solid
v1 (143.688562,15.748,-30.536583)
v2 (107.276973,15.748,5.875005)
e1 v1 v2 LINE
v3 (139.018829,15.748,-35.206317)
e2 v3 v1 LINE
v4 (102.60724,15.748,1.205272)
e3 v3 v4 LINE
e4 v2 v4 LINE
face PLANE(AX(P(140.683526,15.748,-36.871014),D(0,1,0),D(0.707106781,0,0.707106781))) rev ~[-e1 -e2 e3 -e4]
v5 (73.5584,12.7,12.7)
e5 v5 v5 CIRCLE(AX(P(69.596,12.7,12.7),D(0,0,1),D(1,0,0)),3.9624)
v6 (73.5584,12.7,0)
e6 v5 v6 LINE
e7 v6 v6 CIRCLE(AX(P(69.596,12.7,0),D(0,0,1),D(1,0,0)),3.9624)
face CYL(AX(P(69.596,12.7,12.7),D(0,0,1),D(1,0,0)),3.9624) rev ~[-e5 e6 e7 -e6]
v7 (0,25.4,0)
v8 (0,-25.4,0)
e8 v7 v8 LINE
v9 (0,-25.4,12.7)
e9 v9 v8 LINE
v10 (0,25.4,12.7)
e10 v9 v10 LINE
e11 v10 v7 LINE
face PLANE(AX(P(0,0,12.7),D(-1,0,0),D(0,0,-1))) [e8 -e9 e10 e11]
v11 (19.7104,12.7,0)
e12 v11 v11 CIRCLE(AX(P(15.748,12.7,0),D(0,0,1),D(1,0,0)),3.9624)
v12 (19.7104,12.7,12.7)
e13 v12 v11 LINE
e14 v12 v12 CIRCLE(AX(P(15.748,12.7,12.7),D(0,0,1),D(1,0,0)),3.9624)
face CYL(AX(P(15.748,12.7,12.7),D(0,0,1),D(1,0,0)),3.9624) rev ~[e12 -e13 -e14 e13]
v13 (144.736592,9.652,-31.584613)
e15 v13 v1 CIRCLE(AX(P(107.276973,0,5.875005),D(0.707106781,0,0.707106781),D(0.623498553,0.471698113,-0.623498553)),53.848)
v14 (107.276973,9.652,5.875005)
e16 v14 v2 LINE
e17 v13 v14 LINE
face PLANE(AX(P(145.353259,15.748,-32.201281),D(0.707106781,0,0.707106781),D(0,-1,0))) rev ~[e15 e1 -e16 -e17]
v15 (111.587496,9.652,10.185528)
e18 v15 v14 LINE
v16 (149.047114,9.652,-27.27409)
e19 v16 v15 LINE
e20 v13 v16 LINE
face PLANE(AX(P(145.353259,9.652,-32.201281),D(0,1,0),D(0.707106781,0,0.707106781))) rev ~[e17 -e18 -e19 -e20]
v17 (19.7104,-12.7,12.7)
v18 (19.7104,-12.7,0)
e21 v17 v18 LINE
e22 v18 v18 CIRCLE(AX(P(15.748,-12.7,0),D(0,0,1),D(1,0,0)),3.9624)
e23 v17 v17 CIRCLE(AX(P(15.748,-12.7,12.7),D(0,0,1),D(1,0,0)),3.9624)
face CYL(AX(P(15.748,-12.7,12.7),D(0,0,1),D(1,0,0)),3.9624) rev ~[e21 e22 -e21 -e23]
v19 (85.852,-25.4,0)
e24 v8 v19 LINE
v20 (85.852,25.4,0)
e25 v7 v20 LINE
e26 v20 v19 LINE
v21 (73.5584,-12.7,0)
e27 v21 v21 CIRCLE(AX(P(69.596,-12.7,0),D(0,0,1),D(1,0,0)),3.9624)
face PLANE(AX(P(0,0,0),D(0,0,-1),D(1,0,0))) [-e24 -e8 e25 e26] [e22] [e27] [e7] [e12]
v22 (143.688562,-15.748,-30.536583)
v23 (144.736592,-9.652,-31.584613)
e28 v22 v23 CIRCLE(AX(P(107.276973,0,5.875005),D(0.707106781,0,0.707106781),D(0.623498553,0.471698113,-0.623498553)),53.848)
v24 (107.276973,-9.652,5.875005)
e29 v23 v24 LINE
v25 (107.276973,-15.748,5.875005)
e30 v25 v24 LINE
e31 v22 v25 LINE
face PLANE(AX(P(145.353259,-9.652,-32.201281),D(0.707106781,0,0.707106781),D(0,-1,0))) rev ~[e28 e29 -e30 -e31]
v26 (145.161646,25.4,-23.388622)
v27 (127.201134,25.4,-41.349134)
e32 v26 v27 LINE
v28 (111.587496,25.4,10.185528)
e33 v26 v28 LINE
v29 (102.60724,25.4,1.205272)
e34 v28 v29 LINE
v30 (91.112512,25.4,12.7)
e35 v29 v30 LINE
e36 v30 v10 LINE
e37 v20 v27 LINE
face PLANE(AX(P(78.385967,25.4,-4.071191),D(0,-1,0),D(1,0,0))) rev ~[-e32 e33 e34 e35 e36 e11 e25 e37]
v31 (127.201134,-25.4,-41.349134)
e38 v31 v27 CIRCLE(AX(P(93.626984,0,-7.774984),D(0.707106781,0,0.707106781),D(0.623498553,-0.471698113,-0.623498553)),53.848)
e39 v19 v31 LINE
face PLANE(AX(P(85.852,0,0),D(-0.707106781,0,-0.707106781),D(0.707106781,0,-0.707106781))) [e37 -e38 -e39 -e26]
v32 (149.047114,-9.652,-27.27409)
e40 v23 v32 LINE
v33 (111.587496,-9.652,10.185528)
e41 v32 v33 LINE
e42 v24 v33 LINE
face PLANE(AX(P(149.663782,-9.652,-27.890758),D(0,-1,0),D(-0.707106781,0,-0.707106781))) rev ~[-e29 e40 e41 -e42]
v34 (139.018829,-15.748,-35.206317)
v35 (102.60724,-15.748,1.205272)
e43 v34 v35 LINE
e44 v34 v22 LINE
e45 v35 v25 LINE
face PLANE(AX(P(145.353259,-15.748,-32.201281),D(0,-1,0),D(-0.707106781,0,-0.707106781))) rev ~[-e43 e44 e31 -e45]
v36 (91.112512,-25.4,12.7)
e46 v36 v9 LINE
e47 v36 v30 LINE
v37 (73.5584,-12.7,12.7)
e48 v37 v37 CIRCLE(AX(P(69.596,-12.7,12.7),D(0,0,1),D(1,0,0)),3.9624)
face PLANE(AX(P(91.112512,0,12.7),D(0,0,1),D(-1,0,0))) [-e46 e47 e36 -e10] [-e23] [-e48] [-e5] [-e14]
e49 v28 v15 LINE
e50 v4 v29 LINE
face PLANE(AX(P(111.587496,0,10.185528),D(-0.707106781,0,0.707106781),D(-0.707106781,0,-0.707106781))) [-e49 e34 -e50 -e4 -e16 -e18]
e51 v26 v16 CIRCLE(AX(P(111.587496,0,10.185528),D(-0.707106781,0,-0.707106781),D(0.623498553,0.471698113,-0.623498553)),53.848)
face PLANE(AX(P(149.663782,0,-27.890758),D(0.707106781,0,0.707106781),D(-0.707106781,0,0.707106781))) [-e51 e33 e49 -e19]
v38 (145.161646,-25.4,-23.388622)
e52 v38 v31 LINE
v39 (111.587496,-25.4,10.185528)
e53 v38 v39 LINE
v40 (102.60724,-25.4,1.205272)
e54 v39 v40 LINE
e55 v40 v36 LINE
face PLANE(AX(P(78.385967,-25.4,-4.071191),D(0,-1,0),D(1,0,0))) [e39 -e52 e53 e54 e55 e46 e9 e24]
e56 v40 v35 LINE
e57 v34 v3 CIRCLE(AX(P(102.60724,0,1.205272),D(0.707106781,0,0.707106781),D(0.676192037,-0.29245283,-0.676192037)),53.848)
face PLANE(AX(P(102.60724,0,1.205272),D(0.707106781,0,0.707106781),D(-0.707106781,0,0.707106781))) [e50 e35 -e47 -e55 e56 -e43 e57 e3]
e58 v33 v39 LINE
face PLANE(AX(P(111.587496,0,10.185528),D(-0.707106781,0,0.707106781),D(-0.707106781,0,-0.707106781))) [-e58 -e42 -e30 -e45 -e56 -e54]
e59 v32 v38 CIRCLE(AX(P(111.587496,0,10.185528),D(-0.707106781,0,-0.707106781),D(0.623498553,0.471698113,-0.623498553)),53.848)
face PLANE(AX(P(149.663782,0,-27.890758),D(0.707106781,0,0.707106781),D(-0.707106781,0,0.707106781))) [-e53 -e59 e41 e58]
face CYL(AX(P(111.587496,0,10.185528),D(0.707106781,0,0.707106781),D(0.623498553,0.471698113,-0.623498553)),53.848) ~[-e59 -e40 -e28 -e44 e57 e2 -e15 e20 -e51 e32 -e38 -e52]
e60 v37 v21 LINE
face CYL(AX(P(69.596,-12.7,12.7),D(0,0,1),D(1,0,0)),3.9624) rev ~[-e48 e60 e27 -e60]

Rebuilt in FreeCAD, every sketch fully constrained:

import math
import FreeCAD as App
import Part
import Sketcher
Q = App.Units.Quantity

doc = App.newDocument("Part")
body = doc.addObject("PartDesign::Body", "Body")

# Sketch on XZ plane
sketch1 = doc.addObject("Sketcher::SketchObject", "Sketch")
body.addObject(sketch1)
sketch1.AttachmentSupport = (doc.XZ_Plane, [""])
sketch1.MapMode = "FlatFace"
sketch1.addGeometry(Part.LineSegment(App.Vector(0, 13, 0), App.Vector(0, 0, 0)), False)
sketch1.addGeometry(Part.LineSegment(App.Vector(0, 0, 0), App.Vector(86, 0, 0)), False)
sketch1.addGeometry(Part.LineSegment(App.Vector(86, 0, 0), App.Vector(132, -46, 0)), False)
sketch1.addGeometry(Part.LineSegment(App.Vector(132, -46, 0), App.Vector(150, -28, 0)), False)
sketch1.addGeometry(Part.LineSegment(App.Vector(150, -28, 0), App.Vector(112, 10, 0)), False)
sketch1.addGeometry(Part.LineSegment(App.Vector(112, 10, 0), App.Vector(103, 1, 0)), False)
sketch1.addGeometry(Part.LineSegment(App.Vector(103, 1, 0), App.Vector(91, 13, 0)), False)
sketch1.addGeometry(Part.LineSegment(App.Vector(91, 13, 0), App.Vector(0, 13, 0)), False)
sketch1.addConstraint(Sketcher.Constraint("Coincident", 0, 2, 1, 1))
sketch1.addConstraint(Sketcher.Constraint("Coincident", 1, 2, 2, 1))
sketch1.addConstraint(Sketcher.Constraint("Coincident", 2, 2, 3, 1))
sketch1.addConstraint(Sketcher.Constraint("Coincident", 3, 2, 4, 1))
sketch1.addConstraint(Sketcher.Constraint("Coincident", 4, 2, 5, 1))
sketch1.addConstraint(Sketcher.Constraint("Coincident", 5, 2, 6, 1))
sketch1.addConstraint(Sketcher.Constraint("Coincident", 6, 2, 7, 1))
sketch1.addConstraint(Sketcher.Constraint("Coincident", 7, 2, 0, 1))
sketch1.addConstraint(Sketcher.Constraint("Vertical", 0))
sketch1.addConstraint(Sketcher.Constraint("Horizontal", 1))
sketch1.addConstraint(Sketcher.Constraint("Horizontal", 7))
sketch1.addConstraint(Sketcher.Constraint("Coincident", 0, 2, -1, 1))
sketch1.addConstraint(Sketcher.Constraint("Perpendicular", 2, 3))
sketch1.addConstraint(Sketcher.Constraint("Perpendicular", 3, 4))
sketch1.addConstraint(Sketcher.Constraint("Perpendicular", 4, 5))
sketch1.addConstraint(Sketcher.Constraint("Perpendicular", 5, 6))
sketch1.addConstraint(Sketcher.Constraint("Distance", 3, Q("1 in")))
sketch1.addConstraint(Sketcher.Constraint("DistanceY", 0, 2, 0, 1, Q("0.5 in")))
sketch1.addConstraint(Sketcher.Constraint("Angle", 2, Q("-45 deg")))
sketch1.addConstraint(Sketcher.Constraint("Distance", 5, Q("0.5 in")))
sketch1.addConstraint(Sketcher.Constraint("DistanceX", 1, 1, 1, 2, Q("3.38 in")))
sketch1.addConstraint(Sketcher.Constraint("Distance", 4, Q("2.12 in")))
sketch1.addConstraint(Sketcher.Constraint("Distance", 6, Q("0.64 in")))
pad1 = doc.addObject("PartDesign::Pad", "Pad")
body.addObject(pad1)
pad1.Profile = sketch1
pad1.Length = Q("2 in")
pad1.Midplane = True

# Sketch on an angled plane
sketch2 = doc.addObject("Sketcher::SketchObject", "Sketch001")
body.addObject(sketch2)
sketch2.Placement = App.Placement(App.Vector(88.77727, 0, -88.77727), App.Rotation(App.Vector(0, 1, 0), App.Vector(0.707106781, 0, 0.707106781), App.Vector(0.707106781, 0, -0.707106781), "ZXY"))
sketch2.addGeometry(Part.LineSegment(App.Vector(10, 86, 0), App.Vector(-10, 86, 0)), False)
sketch2.addGeometry(Part.LineSegment(App.Vector(-10, 86, 0), App.Vector(-10, 80, 0)), False)
sketch2.addGeometry(Part.LineSegment(App.Vector(-10, 80, 0), App.Vector(-16, 80, 0)), False)
sketch2.addGeometry(Part.LineSegment(App.Vector(-16, 80, 0), App.Vector(-16, 73, 0)), False)
sketch2.addGeometry(Part.LineSegment(App.Vector(-16, 73, 0), App.Vector(16, 73, 0)), False)
sketch2.addGeometry(Part.LineSegment(App.Vector(16, 73, 0), App.Vector(16, 80, 0)), False)
sketch2.addGeometry(Part.LineSegment(App.Vector(16, 80, 0), App.Vector(10, 80, 0)), False)
sketch2.addGeometry(Part.LineSegment(App.Vector(10, 80, 0), App.Vector(10, 86, 0)), False)
sketch2.addConstraint(Sketcher.Constraint("Coincident", 0, 2, 1, 1))
sketch2.addConstraint(Sketcher.Constraint("Coincident", 1, 2, 2, 1))
sketch2.addConstraint(Sketcher.Constraint("Coincident", 2, 2, 3, 1))
sketch2.addConstraint(Sketcher.Constraint("Coincident", 3, 2, 4, 1))
sketch2.addConstraint(Sketcher.Constraint("Coincident", 4, 2, 5, 1))
sketch2.addConstraint(Sketcher.Constraint("Coincident", 5, 2, 6, 1))
sketch2.addConstraint(Sketcher.Constraint("Coincident", 6, 2, 7, 1))
sketch2.addConstraint(Sketcher.Constraint("Coincident", 7, 2, 0, 1))
sketch2.addConstraint(Sketcher.Constraint("Horizontal", 0))
sketch2.addConstraint(Sketcher.Constraint("Vertical", 1))
sketch2.addConstraint(Sketcher.Constraint("Horizontal", 2))
sketch2.addConstraint(Sketcher.Constraint("Vertical", 3))
sketch2.addConstraint(Sketcher.Constraint("Horizontal", 4))
sketch2.addConstraint(Sketcher.Constraint("Vertical", 5))
sketch2.addConstraint(Sketcher.Constraint("Horizontal", 6))
sketch2.addConstraint(Sketcher.Constraint("Vertical", 7))
sketch2.addConstraint(Sketcher.Constraint("Symmetric", 2, 2, 5, 2, -2))
sketch2.addConstraint(Sketcher.Constraint("Equal", 2, 6))
sketch2.addConstraint(Sketcher.Constraint("Equal", 6, 1))
sketch2.addConstraint(Sketcher.Constraint("DistanceX", 1, 2, 4, 2, Q("1 in")))
sketch2.addConstraint(Sketcher.Constraint("DistanceX", 0, 2, 0, 1, Q("0.76 in")))
sketch2.addConstraint(Sketcher.Constraint("DistanceY", 3, 2, 3, 1, Q("0.26 in")))
sketch2.addConstraint(Sketcher.Constraint("DistanceY", -1, 1, 0, 2, 86.106531))
pocket1 = doc.addObject("PartDesign::Pocket", "Pocket")
body.addObject(pocket1)
pocket1.Profile = sketch2
pocket1.Type = "ThroughAll"

# Sketch on an angled plane
sketch3 = doc.addObject("Sketcher::SketchObject", "Sketch002")
body.addObject(sketch3)
sketch3.Placement = App.Placement(App.Vector(60.886512, 0, 60.886512), App.Rotation(App.Vector(0.707106781, 0, -0.707106781), App.Vector(0, 0.999999999, 0), App.Vector(0.707106781, 0, 0.707106781), "ZXY"))
sketch3.addGeometry(Part.ArcOfCircle(Part.Circle(App.Vector(72, 0, 0), App.Vector(0, 0, 1), 54), math.radians(-28), math.radians(28)), False)
sketch3.addGeometry(Part.LineSegment(App.Vector(119, -25, 0), App.Vector(119, -33, 0)), False)
sketch3.addGeometry(Part.LineSegment(App.Vector(119, -33, 0), App.Vector(140, -33, 0)), False)
sketch3.addGeometry(Part.LineSegment(App.Vector(140, -33, 0), App.Vector(140, 35, 0)), False)
sketch3.addGeometry(Part.LineSegment(App.Vector(140, 35, 0), App.Vector(119, 35, 0)), False)
sketch3.addGeometry(Part.LineSegment(App.Vector(119, 35, 0), App.Vector(119, 25, 0)), False)
sketch3.addConstraint(Sketcher.Constraint("Coincident", 0, 1, 1, 1))
sketch3.addConstraint(Sketcher.Constraint("Coincident", 1, 2, 2, 1))
sketch3.addConstraint(Sketcher.Constraint("Coincident", 2, 2, 3, 1))
sketch3.addConstraint(Sketcher.Constraint("Coincident", 3, 2, 4, 1))
sketch3.addConstraint(Sketcher.Constraint("Coincident", 4, 2, 5, 1))
sketch3.addConstraint(Sketcher.Constraint("Coincident", 5, 2, 0, 2))
sketch3.addConstraint(Sketcher.Constraint("Vertical", 1))
sketch3.addConstraint(Sketcher.Constraint("Horizontal", 2))
sketch3.addConstraint(Sketcher.Constraint("Vertical", 3))
sketch3.addConstraint(Sketcher.Constraint("Horizontal", 4))
sketch3.addConstraint(Sketcher.Constraint("Vertical", 5))
sketch3.addConstraint(Sketcher.Constraint("Symmetric", 0, 1, 5, 2, -1))
sketch3.addConstraint(Sketcher.Constraint("Radius", 0, Q("2.12 in")))
sketch3.addConstraint(Sketcher.Constraint("DistanceY", 0, 1, -1, 1, Q("1 in")))
sketch3.addConstraint(Sketcher.Constraint("DistanceY", 1, 2, 1, 1, 7.815221))
sketch3.addConstraint(Sketcher.Constraint("DistanceX", 0, 3, 2, 2, 68.138801))
sketch3.addConstraint(Sketcher.Constraint("DistanceY", 3, 1, 3, 2, 68.068787))
sketch3.addConstraint(Sketcher.Constraint("DistanceX", -1, 1, 0, 3, 71.702019))
pocket2 = doc.addObject("PartDesign::Pocket", "Pocket001")
body.addObject(pocket2)
pocket2.Profile = sketch3
pocket2.Type = "ThroughAll"

# Sketch on XY plane
sketch4 = doc.addObject("Sketcher::SketchObject", "Sketch003")
body.addObject(sketch4)
sketch4.AttachmentSupport = (doc.XY_Plane, [""])
sketch4.MapMode = "FlatFace"
sketch4.AttachmentOffset = App.Placement(App.Vector(0, 0, 0.5 * 25.4), App.Rotation())
sketch4.addGeometry(Part.Circle(App.Vector(15.7, 12.7, 0), App.Vector(0, 0, 1), 4), False)
sketch4.addGeometry(Part.Circle(App.Vector(15.7, -12.7, 0), App.Vector(0, 0, 1), 4), False)
sketch4.addGeometry(Part.Circle(App.Vector(69.6, -12.7, 0), App.Vector(0, 0, 1), 4), False)
sketch4.addGeometry(Part.Circle(App.Vector(69.6, 12.7, 0), App.Vector(0, 0, 1), 4), False)
sketch4.addConstraint(Sketcher.Constraint("Equal", 0, 1))
sketch4.addConstraint(Sketcher.Constraint("Equal", 1, 2))
sketch4.addConstraint(Sketcher.Constraint("Equal", 2, 3))
sketch4.addConstraint(Sketcher.Constraint("Symmetric", 0, 3, 1, 3, -1))
sketch4.addConstraint(Sketcher.Constraint("Symmetric", 2, 3, 3, 3, -1))
sketch4.addConstraint(Sketcher.Constraint("Horizontal", 1, 3, 2, 3))
sketch4.addConstraint(Sketcher.Constraint("Diameter", 0, Q("0.312 in")))
sketch4.addConstraint(Sketcher.Constraint("DistanceY", 1, 3, 0, 3, Q("1 in")))
sketch4.addConstraint(Sketcher.Constraint("DistanceX", -1, 1, 0, 3, Q("0.62 in")))
sketch4.addConstraint(Sketcher.Constraint("DistanceX", -1, 1, 2, 3, Q("2.74 in")))
pocket3 = doc.addObject("PartDesign::Pocket", "Pocket002")
body.addObject(pocket3)
pocket3.Profile = sketch4
pocket3.Type = "ThroughAll"

doc.recompute()
